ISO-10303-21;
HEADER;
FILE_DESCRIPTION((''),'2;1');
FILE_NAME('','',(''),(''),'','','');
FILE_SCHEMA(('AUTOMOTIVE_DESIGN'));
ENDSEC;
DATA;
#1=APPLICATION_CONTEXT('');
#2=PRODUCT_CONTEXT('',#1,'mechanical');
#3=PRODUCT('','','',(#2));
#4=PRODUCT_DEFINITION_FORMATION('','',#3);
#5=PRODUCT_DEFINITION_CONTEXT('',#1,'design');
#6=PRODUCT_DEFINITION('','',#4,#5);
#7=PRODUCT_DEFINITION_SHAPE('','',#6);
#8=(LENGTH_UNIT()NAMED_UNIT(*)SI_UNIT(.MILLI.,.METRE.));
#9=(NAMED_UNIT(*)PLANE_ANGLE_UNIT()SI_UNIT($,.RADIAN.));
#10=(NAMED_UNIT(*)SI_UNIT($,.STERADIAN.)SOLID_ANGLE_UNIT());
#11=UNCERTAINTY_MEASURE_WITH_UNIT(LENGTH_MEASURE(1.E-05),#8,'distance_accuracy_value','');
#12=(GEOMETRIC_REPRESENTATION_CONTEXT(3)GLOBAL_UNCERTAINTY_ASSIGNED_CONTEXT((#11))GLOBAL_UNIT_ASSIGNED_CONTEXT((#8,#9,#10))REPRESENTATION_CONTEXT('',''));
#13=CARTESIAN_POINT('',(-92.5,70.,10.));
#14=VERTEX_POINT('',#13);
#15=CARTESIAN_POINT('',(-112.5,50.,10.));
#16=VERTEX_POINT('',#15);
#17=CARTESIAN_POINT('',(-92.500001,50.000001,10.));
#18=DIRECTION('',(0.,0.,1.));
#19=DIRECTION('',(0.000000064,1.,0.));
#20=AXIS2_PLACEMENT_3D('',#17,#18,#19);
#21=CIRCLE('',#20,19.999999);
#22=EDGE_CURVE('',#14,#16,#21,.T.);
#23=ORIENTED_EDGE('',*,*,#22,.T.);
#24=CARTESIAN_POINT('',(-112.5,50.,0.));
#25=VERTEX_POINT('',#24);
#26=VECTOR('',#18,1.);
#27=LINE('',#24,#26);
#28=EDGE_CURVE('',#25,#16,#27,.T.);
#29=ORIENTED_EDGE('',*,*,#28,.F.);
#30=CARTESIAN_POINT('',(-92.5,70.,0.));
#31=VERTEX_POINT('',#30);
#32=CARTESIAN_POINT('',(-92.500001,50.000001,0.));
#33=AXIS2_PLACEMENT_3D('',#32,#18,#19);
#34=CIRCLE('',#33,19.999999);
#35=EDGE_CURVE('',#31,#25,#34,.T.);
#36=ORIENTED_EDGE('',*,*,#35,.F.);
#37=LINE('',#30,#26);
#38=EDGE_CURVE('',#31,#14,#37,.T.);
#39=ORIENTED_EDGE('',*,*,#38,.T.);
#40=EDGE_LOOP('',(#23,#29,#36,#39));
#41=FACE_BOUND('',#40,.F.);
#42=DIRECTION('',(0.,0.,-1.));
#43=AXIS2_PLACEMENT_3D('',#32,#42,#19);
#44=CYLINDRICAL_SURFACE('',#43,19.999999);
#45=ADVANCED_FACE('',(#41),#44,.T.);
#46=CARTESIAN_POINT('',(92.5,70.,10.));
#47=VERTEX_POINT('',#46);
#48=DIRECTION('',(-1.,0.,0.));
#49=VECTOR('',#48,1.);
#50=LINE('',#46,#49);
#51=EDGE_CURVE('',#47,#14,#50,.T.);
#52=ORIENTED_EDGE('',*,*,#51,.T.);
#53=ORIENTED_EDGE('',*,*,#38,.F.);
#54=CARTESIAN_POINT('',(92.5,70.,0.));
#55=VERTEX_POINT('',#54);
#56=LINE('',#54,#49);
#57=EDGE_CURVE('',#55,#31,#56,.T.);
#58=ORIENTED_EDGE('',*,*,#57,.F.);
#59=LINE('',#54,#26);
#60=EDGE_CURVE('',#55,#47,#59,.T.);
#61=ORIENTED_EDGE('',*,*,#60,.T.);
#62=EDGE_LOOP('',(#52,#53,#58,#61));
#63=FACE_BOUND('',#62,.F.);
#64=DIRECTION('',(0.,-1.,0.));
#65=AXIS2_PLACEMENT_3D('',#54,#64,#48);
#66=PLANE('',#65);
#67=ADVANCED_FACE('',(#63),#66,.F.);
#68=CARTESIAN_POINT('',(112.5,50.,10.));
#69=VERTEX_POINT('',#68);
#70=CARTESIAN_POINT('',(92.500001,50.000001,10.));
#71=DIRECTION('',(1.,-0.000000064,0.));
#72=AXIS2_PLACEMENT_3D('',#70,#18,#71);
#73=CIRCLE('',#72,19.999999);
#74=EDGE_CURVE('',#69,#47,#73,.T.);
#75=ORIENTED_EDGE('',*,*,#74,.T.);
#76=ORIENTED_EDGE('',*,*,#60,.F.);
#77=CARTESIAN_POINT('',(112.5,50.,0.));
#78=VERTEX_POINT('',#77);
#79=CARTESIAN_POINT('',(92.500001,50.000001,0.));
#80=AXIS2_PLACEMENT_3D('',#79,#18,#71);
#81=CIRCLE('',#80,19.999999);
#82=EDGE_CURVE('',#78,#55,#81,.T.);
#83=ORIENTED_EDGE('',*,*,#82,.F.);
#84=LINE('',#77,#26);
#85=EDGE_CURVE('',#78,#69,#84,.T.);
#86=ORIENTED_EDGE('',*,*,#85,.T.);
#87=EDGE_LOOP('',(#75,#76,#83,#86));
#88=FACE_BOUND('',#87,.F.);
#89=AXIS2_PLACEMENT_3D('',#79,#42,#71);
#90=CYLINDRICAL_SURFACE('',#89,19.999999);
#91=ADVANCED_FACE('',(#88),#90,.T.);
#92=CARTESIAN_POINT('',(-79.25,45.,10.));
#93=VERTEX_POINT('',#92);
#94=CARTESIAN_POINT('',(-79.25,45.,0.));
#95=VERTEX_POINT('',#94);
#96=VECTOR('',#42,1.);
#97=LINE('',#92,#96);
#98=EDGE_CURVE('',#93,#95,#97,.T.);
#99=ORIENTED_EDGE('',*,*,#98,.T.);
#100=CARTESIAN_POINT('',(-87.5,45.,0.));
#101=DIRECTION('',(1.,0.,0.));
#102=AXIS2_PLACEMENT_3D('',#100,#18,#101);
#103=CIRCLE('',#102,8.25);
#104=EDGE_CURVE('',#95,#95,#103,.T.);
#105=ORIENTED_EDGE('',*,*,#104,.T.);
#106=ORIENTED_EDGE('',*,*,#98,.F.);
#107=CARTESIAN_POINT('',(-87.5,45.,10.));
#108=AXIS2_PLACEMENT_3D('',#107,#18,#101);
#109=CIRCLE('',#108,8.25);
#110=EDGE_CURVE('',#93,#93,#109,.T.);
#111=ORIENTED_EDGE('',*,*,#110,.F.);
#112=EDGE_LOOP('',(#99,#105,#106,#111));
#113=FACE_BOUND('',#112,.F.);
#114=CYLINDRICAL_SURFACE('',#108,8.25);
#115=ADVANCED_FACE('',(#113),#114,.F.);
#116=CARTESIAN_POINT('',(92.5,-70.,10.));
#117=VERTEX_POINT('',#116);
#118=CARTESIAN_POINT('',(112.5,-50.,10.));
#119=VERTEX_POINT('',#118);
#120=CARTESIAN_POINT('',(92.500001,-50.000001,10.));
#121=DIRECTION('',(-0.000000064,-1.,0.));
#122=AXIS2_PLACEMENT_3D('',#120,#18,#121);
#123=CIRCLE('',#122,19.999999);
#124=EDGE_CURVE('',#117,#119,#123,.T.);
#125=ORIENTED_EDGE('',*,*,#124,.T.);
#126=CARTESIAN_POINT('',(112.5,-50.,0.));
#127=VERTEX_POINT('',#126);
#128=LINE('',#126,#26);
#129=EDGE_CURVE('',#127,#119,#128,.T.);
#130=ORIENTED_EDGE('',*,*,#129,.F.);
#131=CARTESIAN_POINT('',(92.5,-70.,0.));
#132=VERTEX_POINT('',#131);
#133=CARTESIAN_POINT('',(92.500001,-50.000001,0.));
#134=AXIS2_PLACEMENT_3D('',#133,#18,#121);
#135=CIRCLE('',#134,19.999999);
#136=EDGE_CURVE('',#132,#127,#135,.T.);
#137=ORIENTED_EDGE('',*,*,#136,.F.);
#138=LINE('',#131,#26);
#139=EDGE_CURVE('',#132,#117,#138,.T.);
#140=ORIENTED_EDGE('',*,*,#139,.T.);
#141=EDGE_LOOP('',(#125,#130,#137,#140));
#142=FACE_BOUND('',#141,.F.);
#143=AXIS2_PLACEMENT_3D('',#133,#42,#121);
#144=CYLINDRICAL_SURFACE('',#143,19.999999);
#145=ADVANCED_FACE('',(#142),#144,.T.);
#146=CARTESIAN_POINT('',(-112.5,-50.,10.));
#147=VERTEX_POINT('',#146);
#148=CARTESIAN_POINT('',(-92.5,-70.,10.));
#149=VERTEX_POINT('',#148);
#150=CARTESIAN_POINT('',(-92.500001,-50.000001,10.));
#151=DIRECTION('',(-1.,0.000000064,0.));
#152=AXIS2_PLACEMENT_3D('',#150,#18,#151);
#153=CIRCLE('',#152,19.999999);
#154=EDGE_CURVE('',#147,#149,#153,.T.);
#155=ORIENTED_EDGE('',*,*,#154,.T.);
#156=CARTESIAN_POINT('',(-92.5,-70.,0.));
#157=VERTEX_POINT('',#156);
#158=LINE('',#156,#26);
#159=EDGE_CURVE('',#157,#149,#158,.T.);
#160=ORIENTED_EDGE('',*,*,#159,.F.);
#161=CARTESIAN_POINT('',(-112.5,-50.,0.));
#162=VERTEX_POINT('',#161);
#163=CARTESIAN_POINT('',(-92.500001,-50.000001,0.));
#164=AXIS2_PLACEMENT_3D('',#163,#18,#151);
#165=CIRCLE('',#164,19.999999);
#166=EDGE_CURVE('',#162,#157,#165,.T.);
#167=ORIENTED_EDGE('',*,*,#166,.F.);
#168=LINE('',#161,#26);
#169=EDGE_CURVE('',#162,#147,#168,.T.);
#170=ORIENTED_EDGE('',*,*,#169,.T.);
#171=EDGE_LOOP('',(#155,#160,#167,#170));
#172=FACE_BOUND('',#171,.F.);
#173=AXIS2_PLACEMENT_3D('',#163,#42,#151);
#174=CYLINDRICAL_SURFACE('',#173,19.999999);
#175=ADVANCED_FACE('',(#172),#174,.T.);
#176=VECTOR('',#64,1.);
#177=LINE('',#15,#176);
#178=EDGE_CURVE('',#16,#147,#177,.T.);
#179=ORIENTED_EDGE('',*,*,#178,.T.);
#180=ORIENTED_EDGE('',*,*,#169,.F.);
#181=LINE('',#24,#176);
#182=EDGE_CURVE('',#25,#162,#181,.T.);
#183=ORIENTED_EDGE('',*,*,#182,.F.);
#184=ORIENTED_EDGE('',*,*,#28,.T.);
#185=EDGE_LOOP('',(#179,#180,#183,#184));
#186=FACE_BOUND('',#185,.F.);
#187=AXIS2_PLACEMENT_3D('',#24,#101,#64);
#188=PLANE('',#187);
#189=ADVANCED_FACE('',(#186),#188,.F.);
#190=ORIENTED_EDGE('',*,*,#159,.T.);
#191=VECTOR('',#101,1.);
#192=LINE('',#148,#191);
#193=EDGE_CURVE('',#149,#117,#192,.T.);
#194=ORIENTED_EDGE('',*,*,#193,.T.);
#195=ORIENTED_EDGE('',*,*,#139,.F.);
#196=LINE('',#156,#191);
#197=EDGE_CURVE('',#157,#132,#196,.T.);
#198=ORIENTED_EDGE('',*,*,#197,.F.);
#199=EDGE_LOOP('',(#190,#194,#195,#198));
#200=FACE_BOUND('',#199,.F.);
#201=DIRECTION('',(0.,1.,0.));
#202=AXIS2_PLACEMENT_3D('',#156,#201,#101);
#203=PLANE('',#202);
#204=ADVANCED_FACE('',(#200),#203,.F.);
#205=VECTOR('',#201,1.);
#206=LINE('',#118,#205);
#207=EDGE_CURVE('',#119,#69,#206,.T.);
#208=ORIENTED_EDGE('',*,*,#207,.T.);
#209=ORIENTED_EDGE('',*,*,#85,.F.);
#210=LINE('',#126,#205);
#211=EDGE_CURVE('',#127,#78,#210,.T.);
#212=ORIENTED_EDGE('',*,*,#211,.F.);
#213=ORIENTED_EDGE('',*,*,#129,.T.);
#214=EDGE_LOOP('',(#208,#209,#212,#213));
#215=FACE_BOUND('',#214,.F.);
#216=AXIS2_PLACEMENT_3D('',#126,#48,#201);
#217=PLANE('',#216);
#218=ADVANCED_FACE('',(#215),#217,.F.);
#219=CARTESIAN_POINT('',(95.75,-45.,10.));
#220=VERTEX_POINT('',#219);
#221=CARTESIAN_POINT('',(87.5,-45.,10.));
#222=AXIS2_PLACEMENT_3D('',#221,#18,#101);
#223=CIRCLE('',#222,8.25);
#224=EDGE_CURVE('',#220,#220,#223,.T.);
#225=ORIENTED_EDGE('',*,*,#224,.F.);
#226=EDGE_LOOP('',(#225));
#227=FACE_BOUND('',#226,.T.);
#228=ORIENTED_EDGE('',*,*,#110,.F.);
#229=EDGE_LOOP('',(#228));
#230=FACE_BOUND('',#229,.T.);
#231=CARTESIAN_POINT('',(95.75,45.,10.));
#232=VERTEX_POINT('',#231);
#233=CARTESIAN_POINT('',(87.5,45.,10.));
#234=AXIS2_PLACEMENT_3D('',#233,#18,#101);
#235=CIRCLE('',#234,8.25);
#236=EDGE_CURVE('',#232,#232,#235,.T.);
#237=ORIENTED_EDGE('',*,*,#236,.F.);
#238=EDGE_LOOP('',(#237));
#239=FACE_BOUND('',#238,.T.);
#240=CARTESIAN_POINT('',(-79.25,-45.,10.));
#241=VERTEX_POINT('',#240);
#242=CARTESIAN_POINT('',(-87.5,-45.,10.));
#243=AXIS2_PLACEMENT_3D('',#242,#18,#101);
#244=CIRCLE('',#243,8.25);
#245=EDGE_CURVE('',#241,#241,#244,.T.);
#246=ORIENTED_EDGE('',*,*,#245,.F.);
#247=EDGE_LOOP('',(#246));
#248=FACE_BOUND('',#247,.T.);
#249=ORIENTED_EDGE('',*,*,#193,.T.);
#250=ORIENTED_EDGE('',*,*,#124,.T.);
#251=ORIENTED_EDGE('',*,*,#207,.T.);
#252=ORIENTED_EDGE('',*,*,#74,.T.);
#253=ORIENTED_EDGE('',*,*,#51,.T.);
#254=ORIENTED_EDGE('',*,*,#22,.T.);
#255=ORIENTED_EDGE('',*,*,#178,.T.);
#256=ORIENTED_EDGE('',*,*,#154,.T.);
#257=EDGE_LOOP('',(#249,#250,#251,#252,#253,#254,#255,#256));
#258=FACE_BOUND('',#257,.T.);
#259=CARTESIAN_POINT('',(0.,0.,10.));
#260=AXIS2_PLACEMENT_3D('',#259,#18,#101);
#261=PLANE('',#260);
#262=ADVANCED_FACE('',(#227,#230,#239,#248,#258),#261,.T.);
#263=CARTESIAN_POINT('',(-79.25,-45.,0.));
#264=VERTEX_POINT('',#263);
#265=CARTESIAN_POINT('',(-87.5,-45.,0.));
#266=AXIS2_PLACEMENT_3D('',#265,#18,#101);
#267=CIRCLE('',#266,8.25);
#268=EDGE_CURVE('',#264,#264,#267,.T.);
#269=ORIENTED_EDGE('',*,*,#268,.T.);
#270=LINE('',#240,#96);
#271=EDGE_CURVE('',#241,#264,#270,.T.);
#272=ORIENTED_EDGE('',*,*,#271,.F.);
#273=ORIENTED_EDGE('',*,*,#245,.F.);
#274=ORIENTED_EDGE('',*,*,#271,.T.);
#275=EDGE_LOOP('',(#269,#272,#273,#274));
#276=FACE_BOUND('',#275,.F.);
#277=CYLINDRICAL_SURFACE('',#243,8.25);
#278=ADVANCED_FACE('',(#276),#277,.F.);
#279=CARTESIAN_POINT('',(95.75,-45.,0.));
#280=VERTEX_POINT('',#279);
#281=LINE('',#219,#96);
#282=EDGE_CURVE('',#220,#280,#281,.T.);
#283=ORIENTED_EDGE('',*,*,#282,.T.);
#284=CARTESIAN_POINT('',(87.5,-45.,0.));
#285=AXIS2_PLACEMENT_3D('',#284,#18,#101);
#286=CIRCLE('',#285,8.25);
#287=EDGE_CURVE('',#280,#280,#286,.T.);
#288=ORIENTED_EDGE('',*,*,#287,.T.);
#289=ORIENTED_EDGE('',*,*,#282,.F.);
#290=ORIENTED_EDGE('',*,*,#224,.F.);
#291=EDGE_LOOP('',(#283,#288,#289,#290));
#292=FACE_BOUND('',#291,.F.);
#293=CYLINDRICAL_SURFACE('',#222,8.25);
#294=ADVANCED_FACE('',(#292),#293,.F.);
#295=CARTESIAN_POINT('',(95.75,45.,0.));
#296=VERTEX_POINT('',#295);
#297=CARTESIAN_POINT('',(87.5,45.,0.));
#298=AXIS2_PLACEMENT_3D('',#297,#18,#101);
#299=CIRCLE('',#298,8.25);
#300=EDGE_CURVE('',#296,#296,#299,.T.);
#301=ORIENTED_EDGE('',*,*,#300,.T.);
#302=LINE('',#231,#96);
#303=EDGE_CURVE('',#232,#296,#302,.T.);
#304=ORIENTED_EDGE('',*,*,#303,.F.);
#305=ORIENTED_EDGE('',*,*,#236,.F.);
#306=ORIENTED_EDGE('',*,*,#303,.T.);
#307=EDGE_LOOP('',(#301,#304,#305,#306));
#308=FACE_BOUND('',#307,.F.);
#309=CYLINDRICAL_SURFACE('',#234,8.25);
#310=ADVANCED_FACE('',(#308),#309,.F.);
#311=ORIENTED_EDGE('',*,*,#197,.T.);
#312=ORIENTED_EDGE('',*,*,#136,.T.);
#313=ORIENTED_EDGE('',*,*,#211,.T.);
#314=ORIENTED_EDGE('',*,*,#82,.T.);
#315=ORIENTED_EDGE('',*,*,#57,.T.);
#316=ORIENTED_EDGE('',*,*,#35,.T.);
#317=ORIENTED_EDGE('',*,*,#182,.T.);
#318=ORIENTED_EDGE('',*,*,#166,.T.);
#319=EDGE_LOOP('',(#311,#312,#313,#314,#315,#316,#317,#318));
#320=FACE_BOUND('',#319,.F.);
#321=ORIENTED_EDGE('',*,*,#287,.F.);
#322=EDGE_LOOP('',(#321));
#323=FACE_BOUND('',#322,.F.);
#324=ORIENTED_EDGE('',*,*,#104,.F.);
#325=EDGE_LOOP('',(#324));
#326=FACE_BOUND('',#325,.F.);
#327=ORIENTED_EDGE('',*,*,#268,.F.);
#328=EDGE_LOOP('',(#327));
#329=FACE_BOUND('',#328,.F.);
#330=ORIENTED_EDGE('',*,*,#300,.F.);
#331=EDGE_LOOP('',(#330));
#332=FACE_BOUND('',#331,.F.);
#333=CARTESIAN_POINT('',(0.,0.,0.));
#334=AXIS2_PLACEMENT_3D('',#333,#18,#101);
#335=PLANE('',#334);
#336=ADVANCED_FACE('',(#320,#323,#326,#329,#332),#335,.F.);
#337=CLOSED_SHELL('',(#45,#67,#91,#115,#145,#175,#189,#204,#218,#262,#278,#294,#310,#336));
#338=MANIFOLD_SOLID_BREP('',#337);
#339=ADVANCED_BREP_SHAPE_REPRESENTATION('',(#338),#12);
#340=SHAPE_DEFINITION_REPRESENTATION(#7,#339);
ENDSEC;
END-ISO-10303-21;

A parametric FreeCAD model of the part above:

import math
import FreeCAD as App
import Part
import Sketcher
from FreeCAD import Vector
Q = App.Units.Quantity

doc = App.newDocument("Part")
body = doc.addObject("PartDesign::Body", "Body")

sketch1 = body.newObject("Sketcher::SketchObject", "Sketch")
sketch1.AttachmentSupport = (doc.getObject("XY_Plane"), [""])
sketch1.MapMode = "FlatFace"
sketch1.addGeometry([
    Part.ArcOfCircle(Part.Circle(Vector(93, 50, 0), Vector(0, 0, 1), 20), math.radians(0), math.radians(90)),
    Part.LineSegment(Vector(92, 70, 0), Vector(-92, 70, 0)),
    Part.ArcOfCircle(Part.Circle(Vector(-93, 50, 0), Vector(0, 0, 1), 20), math.radians(90), math.radians(180)),
    Part.LineSegment(Vector(-112, 50, 0), Vector(-112, -50, 0)),
    Part.ArcOfCircle(Part.Circle(Vector(-93, -50, 0), Vector(0, 0, 1), 20), math.radians(180), math.radians(270)),
    Part.LineSegment(Vector(-92, -70, 0), Vector(92, -70, 0)),
    Part.ArcOfCircle(Part.Circle(Vector(93, -50, 0), Vector(0, 0, 1), 20), math.radians(-90), math.radians(0)),
    Part.LineSegment(Vector(112, -50, 0), Vector(112, 50, 0)),
], False)
sketch1.addConstraint([
    Sketcher.Constraint("Tangent", 0, 2, 1, 1),
    Sketcher.Constraint("Tangent", 1, 2, 2, 1),
    Sketcher.Constraint("Tangent", 2, 2, 3, 1),
    Sketcher.Constraint("Tangent", 3, 2, 4, 1),
    Sketcher.Constraint("Tangent", 4, 2, 5, 1),
    Sketcher.Constraint("Tangent", 5, 2, 6, 1),
    Sketcher.Constraint("Tangent", 6, 2, 7, 1),
    Sketcher.Constraint("Tangent", 7, 2, 0, 1),
    Sketcher.Constraint("Horizontal", 1),
    Sketcher.Constraint("Vertical", 3),
    Sketcher.Constraint("Horizontal", 5),
    Sketcher.Constraint("Vertical", 7),
    Sketcher.Constraint("Equal", 0, 2),
    Sketcher.Constraint("Equal", 2, 4),
    Sketcher.Constraint("Equal", 4, 6),
    Sketcher.Constraint("Symmetric", 0, 3, 4, 3, -1, 1),
    Sketcher.Constraint("Radius", 0, Q("19.999999 mm")),
    Sketcher.Constraint("DistanceX", 1, 2, 1, 1, Q("185 mm")),
    Sketcher.Constraint("DistanceY", 3, 2, 3, 1, Q("100 mm")),
])
pad1 = body.newObject("PartDesign::Pad", "Pad")
pad1.Profile = sketch1
pad1.Length = 10

sketch2 = body.newObject("Sketcher::SketchObject", "Sketch001")
sketch2.AttachmentSupport = (doc.getObject("XY_Plane"), [""])
sketch2.MapMode = "FlatFace"
sketch2.AttachmentOffset = App.Placement(Vector(0, 0, 10), App.Rotation())
sketch2.addGeometry([
    Part.Circle(Vector(-88, 45, 0), Vector(0, 0, 1), 8),
    Part.Circle(Vector(88, 45, 0), Vector(0, 0, 1), 8),
    Part.Circle(Vector(-88, -45, 0), Vector(0, 0, 1), 8),
    Part.Circle(Vector(88, -45, 0), Vector(0, 0, 1), 8),
], False)
sketch2.addConstraint([
    Sketcher.Constraint("Equal", 0, 1),
    Sketcher.Constraint("Equal", 1, 2),
    Sketcher.Constraint("Equal", 2, 3),
    Sketcher.Constraint("Symmetric", 1, 3, 2, 3, -1, 1),
    Sketcher.Constraint("Symmetric", 0, 3, 3, 3, -1, 1),
    Sketcher.Constraint("Symmetric", 0, 3, 1, 3, -2),
    Sketcher.Constraint("Diameter", 0, Q("16.5 mm")),
    Sketcher.Constraint("DistanceY", -1, 1, 0, 3, Q("45 mm")),
    Sketcher.Constraint("DistanceX", 0, 3, 1, 3, Q("175 mm")),
])
pocket1 = body.newObject("PartDesign::Pocket", "Pocket")
pocket1.Profile = sketch2
pocket1.Type = "ThroughAll"

doc.recompute()
